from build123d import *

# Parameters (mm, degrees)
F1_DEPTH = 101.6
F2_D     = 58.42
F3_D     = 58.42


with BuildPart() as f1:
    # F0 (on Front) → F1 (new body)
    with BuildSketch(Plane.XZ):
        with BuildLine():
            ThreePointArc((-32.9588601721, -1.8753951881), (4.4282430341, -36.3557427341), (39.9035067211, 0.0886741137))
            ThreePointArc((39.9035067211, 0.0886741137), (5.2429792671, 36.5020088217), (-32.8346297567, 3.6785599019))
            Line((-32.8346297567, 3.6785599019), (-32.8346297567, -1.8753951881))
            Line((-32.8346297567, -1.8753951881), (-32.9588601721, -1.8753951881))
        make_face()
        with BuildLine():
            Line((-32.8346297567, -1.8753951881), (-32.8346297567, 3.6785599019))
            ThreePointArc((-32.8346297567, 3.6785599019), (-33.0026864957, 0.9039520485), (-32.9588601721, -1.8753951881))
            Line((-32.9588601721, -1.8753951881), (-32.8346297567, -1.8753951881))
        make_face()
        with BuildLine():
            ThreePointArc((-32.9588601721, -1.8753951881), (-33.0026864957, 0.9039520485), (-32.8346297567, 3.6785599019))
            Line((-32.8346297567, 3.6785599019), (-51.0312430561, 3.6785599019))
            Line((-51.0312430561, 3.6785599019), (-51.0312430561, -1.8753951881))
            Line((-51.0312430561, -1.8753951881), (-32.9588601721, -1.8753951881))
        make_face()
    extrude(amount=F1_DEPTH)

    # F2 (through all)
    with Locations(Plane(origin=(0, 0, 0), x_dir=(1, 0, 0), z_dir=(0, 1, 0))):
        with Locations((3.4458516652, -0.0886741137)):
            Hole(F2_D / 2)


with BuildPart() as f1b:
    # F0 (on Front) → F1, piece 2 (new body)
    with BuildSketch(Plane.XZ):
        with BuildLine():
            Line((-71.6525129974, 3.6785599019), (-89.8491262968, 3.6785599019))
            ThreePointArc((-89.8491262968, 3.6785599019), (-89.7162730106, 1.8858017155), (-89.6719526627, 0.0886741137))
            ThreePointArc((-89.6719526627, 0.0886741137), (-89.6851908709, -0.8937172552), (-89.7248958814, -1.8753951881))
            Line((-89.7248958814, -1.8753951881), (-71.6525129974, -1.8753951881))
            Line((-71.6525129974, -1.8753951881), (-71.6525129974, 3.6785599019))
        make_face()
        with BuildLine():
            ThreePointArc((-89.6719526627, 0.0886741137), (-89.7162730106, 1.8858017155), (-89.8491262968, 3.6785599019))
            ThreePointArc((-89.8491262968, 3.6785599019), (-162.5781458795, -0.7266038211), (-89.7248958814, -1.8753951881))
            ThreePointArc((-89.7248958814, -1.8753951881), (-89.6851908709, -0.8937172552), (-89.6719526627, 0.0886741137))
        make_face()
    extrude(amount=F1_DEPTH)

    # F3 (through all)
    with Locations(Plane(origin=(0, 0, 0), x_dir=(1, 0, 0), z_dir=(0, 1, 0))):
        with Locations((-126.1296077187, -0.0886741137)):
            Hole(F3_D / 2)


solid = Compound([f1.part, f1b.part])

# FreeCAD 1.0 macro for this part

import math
import FreeCAD as App
import Part
import Sketcher

V = App.Vector
Q = App.Units.Quantity

doc = App.newDocument("Part")
params = doc.addObject("Spreadsheet::Sheet", "Params")
for row, (alias, value) in enumerate([
    ("pad1_length", "4 in"),
    ("sketch2_diameter", "2.3 in"),
    ("hole_diameter", "2.3 in"),
    ("pad2_length", "4 in"),
    ("sketch4_diameter", "2.3 in"),
    ("hole2_diameter", "2.3 in"),
], start=1):
    params.set(f"A{row}", alias)
    params.set(f"B{row}", "=" + value)
    params.setAlias(f"B{row}", alias)

body = doc.addObject("PartDesign::Body", "Body")

sketch1 = body.newObject("Sketcher::SketchObject", "Sketch")
sketch1.AttachmentSupport = (doc.getObject("XZ_Plane"), [""])
sketch1.MapMode = "FlatFace"
sketch1.addGeometry([
    Part.ArcOfCircle(Part.Circle(V(3, 0, 0), V(0, 0, 1), 36), math.radians(-177), math.radians(174)),
    Part.LineSegment(V(-33, 4, 0), V(-51, 4, 0)),
    Part.LineSegment(V(-51, 4, 0), V(-51, -2, 0)),
    Part.LineSegment(V(-51, -2, 0), V(-33, -2, 0)),
], False)
sketch1.addConstraint([
    Sketcher.Constraint("Coincident", 0, 2, 1, 1),
    Sketcher.Constraint("Coincident", 1, 2, 2, 1),
    Sketcher.Constraint("Coincident", 2, 2, 3, 1),
    Sketcher.Constraint("Coincident", 3, 2, 0, 1),
    Sketcher.Constraint("Horizontal", 1),
    Sketcher.Constraint("Vertical", 2),
    Sketcher.Constraint("Horizontal", 3),
    Sketcher.Constraint("Radius", 0, Q("36.457655 mm")),
    Sketcher.Constraint("DistanceX", 1, 2, 1, 1, Q("18.196613 mm")),
    Sketcher.Constraint("DistanceX", 3, 1, 3, 2, Q("18.072383 mm")),
    Sketcher.Constraint("DistanceY", 2, 2, 2, 1, Q("5.553955 mm")),
    Sketcher.Constraint("DistanceX", -1, 1, 0, 3, Q("3.445852 mm")),
    Sketcher.Constraint("DistanceY", -1, 1, 0, 2, Q("3.67856 mm")),
])
pad1 = body.newObject("PartDesign::Pad", "Pad")
pad1.Profile = sketch1
pad1.setExpression("Length", "Params.pad1_length")

sketch2 = body.newObject("Sketcher::SketchObject", "Sketch001")
sketch2.AttachmentSupport = (doc.getObject("XZ_Plane"), [""])
sketch2.MapMode = "FlatFace"
sketch2.addGeometry(Part.Circle(V(3, 0, 0), V(0, 0, 1), 29), False)
sketch2.addConstraint([
    Sketcher.Constraint("Diameter", 0, Q("2.3 in")),
    Sketcher.Constraint("DistanceX", -1, 1, 0, 3, Q("3.445852 mm")),
    Sketcher.Constraint("DistanceY", -1, 1, 0, 3, Q("0.088674 mm")),
])
sketch2.setExpression("Constraints[0]", "Params.sketch2_diameter")
doc.recompute()
hole = body.newObject("PartDesign::Hole", "Hole")
hole.Profile = sketch2
hole.ThreadType = "None"
hole.setExpression("Diameter", "Params.hole_diameter")
hole.DepthType = "ThroughAll"
hole.Reversed = True
body2 = doc.addObject("PartDesign::Body", "Body001")

sketch3 = body2.newObject("Sketcher::SketchObject", "Sketch002")
sketch3.AttachmentSupport = (doc.getObject("XZ_Plane001"), [""])
sketch3.MapMode = "FlatFace"
sketch3.addGeometry([
    Part.LineSegment(V(-72, 4, 0), V(-90, 4, 0)),
    Part.ArcOfCircle(Part.Circle(V(-126, 0, 0), V(0, 0, 1), 36), math.radians(6), math.radians(357)),
    Part.LineSegment(V(-90, -2, 0), V(-72, -2, 0)),
    Part.LineSegment(V(-72, -2, 0), V(-72, 4, 0)),
], False)
sketch3.addConstraint([
    Sketcher.Constraint("Coincident", 0, 2, 1, 1),
    Sketcher.Constraint("Coincident", 1, 2, 2, 1),
    Sketcher.Constraint("Coincident", 2, 2, 3, 1),
    Sketcher.Constraint("Coincident", 3, 2, 0, 1),
    Sketcher.Constraint("Horizontal", 0),
    Sketcher.Constraint("Horizontal", 2),
    Sketcher.Constraint("Vertical", 3),
    Sketcher.Constraint("Radius", 1, Q("36.457655 mm")),
    Sketcher.Constraint("DistanceX", 0, 2, 0, 1, Q("18.196613 mm")),
    Sketcher.Constraint("DistanceX", 2, 1, 2, 2, Q("18.072383 mm")),
    Sketcher.Constraint("DistanceY", 3, 1, 3, 2, Q("5.553955 mm")),
    Sketcher.Constraint("DistanceY", -1, 1, 0, 2, Q("3.67856 mm")),
    Sketcher.Constraint("DistanceX", 1, 3, -1, 1, Q("126.129608 mm")),
])
pad2 = body2.newObject("PartDesign::Pad", "Pad001")
pad2.Profile = sketch3
pad2.setExpression("Length", "Params.pad2_length")

sketch4 = body2.newObject("Sketcher::SketchObject", "Sketch003")
sketch4.AttachmentSupport = (doc.getObject("XZ_Plane001"), [""])
sketch4.MapMode = "FlatFace"
sketch4.addGeometry(Part.Circle(V(-126, 0, 0), V(0, 0, 1), 29), False)
sketch4.addConstraint([
    Sketcher.Constraint("Diameter", 0, Q("2.3 in")),
    Sketcher.Constraint("DistanceX", 0, 3, -1, 1, Q("126.129608 mm")),
    Sketcher.Constraint("DistanceY", -1, 1, 0, 3, Q("0.088674 mm")),
])
sketch4.setExpression("Constraints[0]", "Params.sketch4_diameter")
doc.recompute()
hole2 = body2.newObject("PartDesign::Hole", "Hole001")
hole2.Profile = sketch4
hole2.ThreadType = "None"
hole2.setExpression("Diameter", "Params.hole2_diameter")
hole2.DepthType = "ThroughAll"
hole2.Reversed = True

doc.recompute()
